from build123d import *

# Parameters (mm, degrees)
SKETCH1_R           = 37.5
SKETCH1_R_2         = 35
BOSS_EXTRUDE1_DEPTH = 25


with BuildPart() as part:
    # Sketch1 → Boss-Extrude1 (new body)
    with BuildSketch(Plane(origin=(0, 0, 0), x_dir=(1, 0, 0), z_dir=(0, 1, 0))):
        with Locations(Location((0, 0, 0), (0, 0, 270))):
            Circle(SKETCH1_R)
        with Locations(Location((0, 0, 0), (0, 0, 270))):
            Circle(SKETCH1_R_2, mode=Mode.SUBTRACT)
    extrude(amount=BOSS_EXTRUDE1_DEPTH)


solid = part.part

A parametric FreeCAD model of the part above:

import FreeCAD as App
import Part
import Sketcher

V = App.Vector
Q = App.Units.Quantity

doc = App.newDocument("Part")
body = doc.addObject("PartDesign::Body", "Body")

# Sketch on XZ plane
sketch1 = doc.addObject("Sketcher::SketchObject", "Sketch")
body.addObject(sketch1)
sketch1.AttachmentSupport = (doc.XZ_Plane, [""])
sketch1.MapMode = "FlatFace"
sketch1.addGeometry(Part.Circle(V(0, 0, 0), V(0, 0, 1), 38), False)
sketch1.addGeometry(Part.Circle(V(0, 0, 0), V(0, 0, 1), 35), False)
sketch1.addConstraint(Sketcher.Constraint("Coincident", 0, 3, -1, 1))
sketch1.addConstraint(Sketcher.Constraint("Coincident", 1, 3, -1, 1))
sketch1.addConstraint(Sketcher.Constraint("Diameter", 0, Q("75 mm")))
sketch1.addConstraint(Sketcher.Constraint("Diameter", 1, Q("70 mm")))
pad1 = doc.addObject("PartDesign::Pad", "Pad")
body.addObject(pad1)
pad1.Profile = sketch1
pad1.Length = 25
pad1.Reversed = True

doc.recompute()
